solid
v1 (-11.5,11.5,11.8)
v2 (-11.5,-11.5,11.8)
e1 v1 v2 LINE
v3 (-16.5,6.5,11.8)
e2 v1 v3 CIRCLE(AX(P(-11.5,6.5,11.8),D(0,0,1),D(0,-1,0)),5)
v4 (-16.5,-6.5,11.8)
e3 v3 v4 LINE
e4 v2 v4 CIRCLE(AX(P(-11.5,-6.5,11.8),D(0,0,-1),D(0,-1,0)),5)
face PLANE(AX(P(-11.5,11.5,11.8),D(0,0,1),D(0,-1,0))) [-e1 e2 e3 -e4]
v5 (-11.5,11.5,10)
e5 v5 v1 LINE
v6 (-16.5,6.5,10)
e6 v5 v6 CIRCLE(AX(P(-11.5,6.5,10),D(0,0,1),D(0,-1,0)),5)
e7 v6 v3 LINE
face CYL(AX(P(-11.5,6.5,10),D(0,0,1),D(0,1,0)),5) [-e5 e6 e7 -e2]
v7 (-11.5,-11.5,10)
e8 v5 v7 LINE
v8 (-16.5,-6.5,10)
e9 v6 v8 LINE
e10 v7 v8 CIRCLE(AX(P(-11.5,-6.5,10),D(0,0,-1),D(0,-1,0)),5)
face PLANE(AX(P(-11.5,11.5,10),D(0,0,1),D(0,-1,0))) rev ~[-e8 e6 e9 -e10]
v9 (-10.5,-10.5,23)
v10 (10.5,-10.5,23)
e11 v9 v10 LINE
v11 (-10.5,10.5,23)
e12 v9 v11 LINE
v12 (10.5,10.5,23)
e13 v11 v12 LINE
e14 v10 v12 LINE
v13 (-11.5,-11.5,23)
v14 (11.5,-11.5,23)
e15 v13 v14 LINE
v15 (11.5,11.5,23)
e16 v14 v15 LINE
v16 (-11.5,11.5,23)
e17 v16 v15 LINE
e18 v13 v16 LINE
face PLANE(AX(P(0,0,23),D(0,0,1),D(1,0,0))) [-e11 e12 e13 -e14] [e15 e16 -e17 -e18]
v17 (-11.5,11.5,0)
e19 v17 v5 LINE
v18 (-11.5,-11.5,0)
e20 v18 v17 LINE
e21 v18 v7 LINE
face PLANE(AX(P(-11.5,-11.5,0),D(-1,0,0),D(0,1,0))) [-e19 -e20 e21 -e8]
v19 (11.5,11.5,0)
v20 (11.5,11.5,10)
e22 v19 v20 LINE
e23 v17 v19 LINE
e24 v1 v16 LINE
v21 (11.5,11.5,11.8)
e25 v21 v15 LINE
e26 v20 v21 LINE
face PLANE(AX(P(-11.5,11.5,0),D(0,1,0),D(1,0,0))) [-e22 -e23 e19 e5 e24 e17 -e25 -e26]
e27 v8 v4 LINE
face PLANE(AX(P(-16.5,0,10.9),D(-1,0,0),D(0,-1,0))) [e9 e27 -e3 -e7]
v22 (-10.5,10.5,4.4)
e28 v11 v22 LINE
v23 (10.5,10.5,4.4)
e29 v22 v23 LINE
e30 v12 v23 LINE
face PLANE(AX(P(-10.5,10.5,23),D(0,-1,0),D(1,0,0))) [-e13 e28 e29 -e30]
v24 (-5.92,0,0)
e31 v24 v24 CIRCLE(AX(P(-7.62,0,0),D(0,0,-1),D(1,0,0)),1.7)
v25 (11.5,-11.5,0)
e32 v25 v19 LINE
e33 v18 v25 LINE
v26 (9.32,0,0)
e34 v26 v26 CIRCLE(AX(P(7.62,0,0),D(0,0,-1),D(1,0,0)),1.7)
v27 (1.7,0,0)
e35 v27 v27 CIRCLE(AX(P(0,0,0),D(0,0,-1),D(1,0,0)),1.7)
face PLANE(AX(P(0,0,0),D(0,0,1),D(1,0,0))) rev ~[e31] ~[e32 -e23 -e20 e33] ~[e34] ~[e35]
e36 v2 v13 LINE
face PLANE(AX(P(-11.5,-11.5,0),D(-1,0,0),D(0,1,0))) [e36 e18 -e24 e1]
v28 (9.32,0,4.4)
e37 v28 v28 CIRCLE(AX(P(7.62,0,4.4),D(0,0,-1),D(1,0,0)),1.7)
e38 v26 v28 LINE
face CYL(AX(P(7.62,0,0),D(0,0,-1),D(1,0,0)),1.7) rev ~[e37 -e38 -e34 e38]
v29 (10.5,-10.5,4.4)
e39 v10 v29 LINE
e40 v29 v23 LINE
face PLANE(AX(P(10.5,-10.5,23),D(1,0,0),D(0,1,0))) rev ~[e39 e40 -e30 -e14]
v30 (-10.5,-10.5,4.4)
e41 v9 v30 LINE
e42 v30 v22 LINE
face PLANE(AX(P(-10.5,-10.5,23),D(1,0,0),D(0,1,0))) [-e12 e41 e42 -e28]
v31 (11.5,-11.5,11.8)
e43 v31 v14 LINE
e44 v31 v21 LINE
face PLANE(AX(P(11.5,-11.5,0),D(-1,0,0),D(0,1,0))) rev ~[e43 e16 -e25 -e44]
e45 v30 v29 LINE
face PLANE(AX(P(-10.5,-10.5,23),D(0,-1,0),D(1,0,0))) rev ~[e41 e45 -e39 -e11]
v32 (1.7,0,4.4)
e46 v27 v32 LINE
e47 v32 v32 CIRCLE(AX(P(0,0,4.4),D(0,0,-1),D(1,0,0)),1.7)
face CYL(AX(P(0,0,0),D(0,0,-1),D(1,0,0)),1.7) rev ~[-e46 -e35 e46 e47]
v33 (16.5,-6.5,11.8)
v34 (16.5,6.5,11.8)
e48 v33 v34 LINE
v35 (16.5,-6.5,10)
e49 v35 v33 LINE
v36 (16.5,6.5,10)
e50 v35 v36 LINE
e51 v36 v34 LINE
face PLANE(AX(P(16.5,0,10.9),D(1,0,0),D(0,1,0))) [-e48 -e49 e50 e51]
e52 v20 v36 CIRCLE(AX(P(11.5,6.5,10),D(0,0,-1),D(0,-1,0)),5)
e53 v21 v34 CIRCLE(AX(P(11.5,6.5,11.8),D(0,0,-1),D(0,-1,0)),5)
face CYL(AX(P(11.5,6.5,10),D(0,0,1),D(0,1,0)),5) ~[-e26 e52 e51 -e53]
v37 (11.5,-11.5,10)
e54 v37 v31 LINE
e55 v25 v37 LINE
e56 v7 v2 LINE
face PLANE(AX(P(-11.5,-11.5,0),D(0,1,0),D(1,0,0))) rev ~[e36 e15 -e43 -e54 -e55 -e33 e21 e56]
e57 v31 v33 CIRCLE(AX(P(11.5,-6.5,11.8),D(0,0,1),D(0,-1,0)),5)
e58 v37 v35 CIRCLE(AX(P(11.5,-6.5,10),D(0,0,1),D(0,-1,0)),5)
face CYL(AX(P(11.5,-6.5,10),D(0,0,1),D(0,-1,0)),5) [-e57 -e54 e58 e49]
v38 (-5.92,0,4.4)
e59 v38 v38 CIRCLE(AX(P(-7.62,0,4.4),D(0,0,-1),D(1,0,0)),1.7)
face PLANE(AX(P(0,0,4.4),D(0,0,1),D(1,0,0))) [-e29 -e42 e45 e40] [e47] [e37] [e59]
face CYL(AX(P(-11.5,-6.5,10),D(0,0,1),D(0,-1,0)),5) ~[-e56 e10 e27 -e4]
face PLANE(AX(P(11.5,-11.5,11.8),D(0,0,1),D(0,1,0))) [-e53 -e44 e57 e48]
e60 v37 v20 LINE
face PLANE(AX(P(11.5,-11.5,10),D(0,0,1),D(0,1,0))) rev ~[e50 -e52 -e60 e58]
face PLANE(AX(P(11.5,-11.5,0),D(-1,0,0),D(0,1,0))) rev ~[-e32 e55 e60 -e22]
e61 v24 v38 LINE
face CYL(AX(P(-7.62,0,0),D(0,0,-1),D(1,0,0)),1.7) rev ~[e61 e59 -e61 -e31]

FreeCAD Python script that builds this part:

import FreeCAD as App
import Part
import Sketcher
from FreeCAD import Vector
Q = App.Units.Quantity


def edges_at(feature, points):
    """Names of the edges that pass closest to the given points."""
    edges = feature.Shape.Edges
    near = lambda p: min(range(len(edges)), key=lambda i: edges[i].distToShape(Part.Vertex(*p))[0])
    return sorted({f"Edge{near(p) + 1}" for p in points})


def add_polygon(sketch, points):
    """Adds a closed chain of lines whose ends are joined by coincident constraints."""
    first, n = sketch.GeometryCount, len(points)
    for a, b in zip(points, points[1:] + points[:1]):
        sketch.addGeometry(Part.LineSegment(App.Vector(*a, 0), App.Vector(*b, 0)), False)
    for i in range(n):
        sketch.addConstraint(Sketcher.Constraint("Coincident", first + i, 2, first + (i + 1) % n, 1))

doc = App.newDocument("Part")
params = doc.addObject("Spreadsheet::Sheet", "Params")
for row, (alias, value) in enumerate([
    ("sketch1_width", "23 mm"),
    ("pad1_length", "23 mm"),
    ("sketch2_width", "21 mm"),
    ("pocket1_length", "18.6 mm"),
    ("sketch3_diameter", "3.4 mm"),
    ("pocket2_length", "5 mm"),
    ("sketch4_width", "23 mm"),
    ("sketch4_height", "1.8 mm"),
    ("pad2_length", "5 mm"),
    ("sketch5_width", "23 mm"),
    ("sketch5_height", "1.8 mm"),
    ("pad3_length", "5 mm"),
    ("fillet_radius", "5 mm"),
], start=1):
    params.set(f"A{row}", alias)
    params.set(f"B{row}", "=" + value)
    params.setAlias(f"B{row}", alias)

body = doc.addObject("PartDesign::Body", "Body")

# Sketch on XY plane
sketch1 = body.newObject("Sketcher::SketchObject", "Sketch")
sketch1.AttachmentSupport = (doc.getObject("XY_Plane"), [""])
sketch1.MapMode = "FlatFace"
add_polygon(sketch1, [(-12, 12), (-12, -12), (12, -12), (12, 12)])  # lines 0-3
sketch1.addConstraint(Sketcher.Constraint("Vertical", 0))
sketch1.addConstraint(Sketcher.Constraint("Horizontal", 1))
sketch1.addConstraint(Sketcher.Constraint("Vertical", 2))
sketch1.addConstraint(Sketcher.Constraint("Horizontal", 3))
sketch1.addConstraint(Sketcher.Constraint("Symmetric", 0, 2, 2, 2, -1, 1))
sketch1.addConstraint(Sketcher.Constraint("Equal", 3, 0))
sketch1.addConstraint(Sketcher.Constraint("DistanceX", 1, 1, 1, 2, Q("23 mm")))
sketch1.setExpression("Constraints[10]", "Params.sketch1_width")
pad1 = body.newObject("PartDesign::Pad", "Pad")
pad1.Profile = sketch1
pad1.setExpression("Length", "Params.pad1_length")

# Sketch on XY plane
sketch2 = body.newObject("Sketcher::SketchObject", "Sketch001")
sketch2.AttachmentSupport = (doc.getObject("XY_Plane"), [""])
sketch2.MapMode = "FlatFace"
sketch2.AttachmentOffset = App.Placement(Vector(0, 0, 23), App.Rotation())
add_polygon(sketch2, [(-10, 10), (-10, -10), (10, -10), (10, 10)])  # lines 0-3
sketch2.addConstraint(Sketcher.Constraint("Vertical", 0))
sketch2.addConstraint(Sketcher.Constraint("Horizontal", 1))
sketch2.addConstraint(Sketcher.Constraint("Vertical", 2))
sketch2.addConstraint(Sketcher.Constraint("Horizontal", 3))
sketch2.addConstraint(Sketcher.Constraint("Symmetric", 0, 2, 2, 2, -1, 1))
sketch2.addConstraint(Sketcher.Constraint("Equal", 3, 0))
sketch2.addConstraint(Sketcher.Constraint("DistanceX", 1, 1, 1, 2, Q("21 mm")))
sketch2.setExpression("Constraints[10]", "Params.sketch2_width")
pocket1 = body.newObject("PartDesign::Pocket", "Pocket")
pocket1.Profile = sketch2
pocket1.setExpression("Length", "Params.pocket1_length")

# Sketch on XY plane
sketch3 = body.newObject("Sketcher::SketchObject", "Sketch002")
sketch3.AttachmentSupport = (doc.getObject("XY_Plane"), [""])
sketch3.MapMode = "FlatFace"
sketch3.addGeometry(Part.Circle(Vector(0, 0, 0), Vector(0, 0, 1), 1.7), False)
sketch3.addGeometry(Part.Circle(Vector(7.6, 0, 0), Vector(0, 0, 1), 1.7), False)
sketch3.addGeometry(Part.Circle(Vector(-7.6, 0, 0), Vector(0, 0, 1), 1.7), False)
sketch3.addConstraint(Sketcher.Constraint("Coincident", 0, 3, -1, 1))
sketch3.addConstraint(Sketcher.Constraint("Equal", 0, 1))
sketch3.addConstraint(Sketcher.Constraint("Equal", 1, 2))
sketch3.addConstraint(Sketcher.Constraint("Symmetric", 1, 3, 2, 3, -1, 1))
sketch3.addConstraint(Sketcher.Constraint("PointOnObject", 1, 3, -1))
sketch3.addConstraint(Sketcher.Constraint("Diameter", 0, Q("3.4 mm")))
sketch3.addConstraint(Sketcher.Constraint("DistanceX", -1, 1, 1, 3, Q("7.62 mm")))
sketch3.setExpression("Constraints[5]", "Params.sketch3_diameter")
pocket2 = body.newObject("PartDesign::Pocket", "Pocket001")
pocket2.Profile = sketch3
pocket2.setExpression("Length", "Params.pocket2_length")
pocket2.Reversed = True

# Sketch on YZ plane
sketch4 = body.newObject("Sketcher::SketchObject", "Sketch003")
sketch4.AttachmentSupport = (doc.getObject("YZ_Plane"), [""])
sketch4.MapMode = "FlatFace"
sketch4.AttachmentOffset = App.Placement(Vector(0, 0, -11.5), App.Rotation())
add_polygon(sketch4, [(11.5, 11.8), (11.5, 10), (-11.5, 10), (-11.5, 11.8)])  # lines 0-3
sketch4.addConstraint(Sketcher.Constraint("Vertical", 0))
sketch4.addConstraint(Sketcher.Constraint("Horizontal", 1))
sketch4.addConstraint(Sketcher.Constraint("Vertical", 2))
sketch4.addConstraint(Sketcher.Constraint("Horizontal", 3))
sketch4.addConstraint(Sketcher.Constraint("DistanceX", 1, 2, 1, 1, Q("23 mm")))
sketch4.addConstraint(Sketcher.Constraint("DistanceY", 0, 2, 0, 1, Q("1.8 mm")))
sketch4.addConstraint(Sketcher.Constraint("DistanceY", -1, 1, 0, 2, Q("10 mm")))
sketch4.addConstraint(Sketcher.Constraint("DistanceX", -1, 1, 0, 2, Q("11.5 mm")))
sketch4.setExpression("Constraints[8]", "Params.sketch4_width")
sketch4.setExpression("Constraints[9]", "Params.sketch4_height")
pad2 = body.newObject("PartDesign::Pad", "Pad001")
pad2.Profile = sketch4
pad2.setExpression("Length", "Params.pad2_length")
pad2.Reversed = True

# Sketch on YZ plane
sketch5 = body.newObject("Sketcher::SketchObject", "Sketch004")
sketch5.AttachmentSupport = (doc.getObject("YZ_Plane"), [""])
sketch5.MapMode = "FlatFace"
sketch5.AttachmentOffset = App.Placement(Vector(0, 0, 11.5), App.Rotation())
add_polygon(sketch5, [(-11.5, 11.8), (-11.5, 10), (11.5, 10), (11.5, 11.8)])  # lines 0-3
sketch5.addConstraint(Sketcher.Constraint("Vertical", 0))
sketch5.addConstraint(Sketcher.Constraint("Horizontal", 1))
sketch5.addConstraint(Sketcher.Constraint("Vertical", 2))
sketch5.addConstraint(Sketcher.Constraint("Horizontal", 3))
sketch5.addConstraint(Sketcher.Constraint("DistanceX", 1, 1, 1, 2, Q("23 mm")))
sketch5.addConstraint(Sketcher.Constraint("DistanceY", 0, 2, 0, 1, Q("1.8 mm")))
sketch5.addConstraint(Sketcher.Constraint("DistanceY", -1, 1, 0, 2, Q("10 mm")))
sketch5.addConstraint(Sketcher.Constraint("DistanceX", 0, 2, -1, 1, Q("11.5 mm")))
sketch5.setExpression("Constraints[8]", "Params.sketch5_width")
sketch5.setExpression("Constraints[9]", "Params.sketch5_height")
pad3 = body.newObject("PartDesign::Pad", "Pad002")
pad3.Profile = sketch5
pad3.setExpression("Length", "Params.pad3_length")
doc.recompute()

fillet = body.newObject("PartDesign::Fillet", "Fillet")
fillet.Base = (pad3, edges_at(pad3, [
    (16.5, -11.5, 10.9),
    (16.5, 11.5, 10.9),
    (-16.5, -11.5, 10.9),
    (-16.5, 11.5, 10.9),
]))
fillet.setExpression("Radius", "Params.fillet_radius")

doc.recompute()
